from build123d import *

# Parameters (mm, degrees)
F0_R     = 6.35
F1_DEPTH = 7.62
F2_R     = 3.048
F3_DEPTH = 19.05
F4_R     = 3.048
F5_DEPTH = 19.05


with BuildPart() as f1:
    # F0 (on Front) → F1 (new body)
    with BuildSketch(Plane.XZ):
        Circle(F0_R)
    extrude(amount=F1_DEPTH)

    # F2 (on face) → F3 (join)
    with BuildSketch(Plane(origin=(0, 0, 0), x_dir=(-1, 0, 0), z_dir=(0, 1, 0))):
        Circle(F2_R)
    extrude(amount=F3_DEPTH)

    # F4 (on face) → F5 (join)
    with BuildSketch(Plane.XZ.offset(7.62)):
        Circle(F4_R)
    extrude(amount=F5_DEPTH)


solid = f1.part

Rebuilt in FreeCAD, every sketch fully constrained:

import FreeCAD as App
import Part
import Sketcher
from FreeCAD import Vector
Q = App.Units.Quantity

doc = App.newDocument("Part")
body = doc.addObject("PartDesign::Body", "Body")

# Sketch on XZ plane
sketch1 = body.newObject("Sketcher::SketchObject", "Sketch")
sketch1.AttachmentSupport = (doc.getObject("XZ_Plane"), [""])
sketch1.MapMode = "FlatFace"
sketch1.addGeometry(Part.Circle(Vector(0, 0, 0), Vector(0, 0, 1), 6), False)
sketch1.addConstraint([
    Sketcher.Constraint("Coincident", 0, 3, -1, 1),
    Sketcher.Constraint("Diameter", 0, Q("0.5 in")),
])
pad1 = body.newObject("PartDesign::Pad", "Pad")
pad1.Profile = sketch1
pad1.Length = Q("0.3 in")

# Sketch on XZ plane
sketch2 = body.newObject("Sketcher::SketchObject", "Sketch001")
sketch2.AttachmentSupport = (doc.getObject("XZ_Plane"), [""])
sketch2.MapMode = "FlatFace"
sketch2.addGeometry(Part.Circle(Vector(0, 0, 0), Vector(0, 0, 1), 3), False)
sketch2.addConstraint([
    Sketcher.Constraint("Coincident", 0, 3, -1, 1),
    Sketcher.Constraint("Diameter", 0, Q("0.24 in")),
])
pad2 = body.newObject("PartDesign::Pad", "Pad001")
pad2.Profile = sketch2
pad2.Length = Q("0.75 in")
pad2.Reversed = True

# Sketch on XZ plane
sketch3 = body.newObject("Sketcher::SketchObject", "Sketch002")
sketch3.AttachmentSupport = (doc.getObject("XZ_Plane"), [""])
sketch3.MapMode = "FlatFace"
sketch3.AttachmentOffset = App.Placement(Vector(0, 0, 0.3 * 25.4), App.Rotation())
sketch3.addGeometry(Part.Circle(Vector(0, 0, 0), Vector(0, 0, 1), 3), False)
sketch3.addConstraint([
    Sketcher.Constraint("Coincident", 0, 3, -1, 1),
    Sketcher.Constraint("Diameter", 0, Q("0.24 in")),
])
pad3 = body.newObject("PartDesign::Pad", "Pad002")
pad3.Profile = sketch3
pad3.Length = Q("0.75 in")

doc.recompute()
